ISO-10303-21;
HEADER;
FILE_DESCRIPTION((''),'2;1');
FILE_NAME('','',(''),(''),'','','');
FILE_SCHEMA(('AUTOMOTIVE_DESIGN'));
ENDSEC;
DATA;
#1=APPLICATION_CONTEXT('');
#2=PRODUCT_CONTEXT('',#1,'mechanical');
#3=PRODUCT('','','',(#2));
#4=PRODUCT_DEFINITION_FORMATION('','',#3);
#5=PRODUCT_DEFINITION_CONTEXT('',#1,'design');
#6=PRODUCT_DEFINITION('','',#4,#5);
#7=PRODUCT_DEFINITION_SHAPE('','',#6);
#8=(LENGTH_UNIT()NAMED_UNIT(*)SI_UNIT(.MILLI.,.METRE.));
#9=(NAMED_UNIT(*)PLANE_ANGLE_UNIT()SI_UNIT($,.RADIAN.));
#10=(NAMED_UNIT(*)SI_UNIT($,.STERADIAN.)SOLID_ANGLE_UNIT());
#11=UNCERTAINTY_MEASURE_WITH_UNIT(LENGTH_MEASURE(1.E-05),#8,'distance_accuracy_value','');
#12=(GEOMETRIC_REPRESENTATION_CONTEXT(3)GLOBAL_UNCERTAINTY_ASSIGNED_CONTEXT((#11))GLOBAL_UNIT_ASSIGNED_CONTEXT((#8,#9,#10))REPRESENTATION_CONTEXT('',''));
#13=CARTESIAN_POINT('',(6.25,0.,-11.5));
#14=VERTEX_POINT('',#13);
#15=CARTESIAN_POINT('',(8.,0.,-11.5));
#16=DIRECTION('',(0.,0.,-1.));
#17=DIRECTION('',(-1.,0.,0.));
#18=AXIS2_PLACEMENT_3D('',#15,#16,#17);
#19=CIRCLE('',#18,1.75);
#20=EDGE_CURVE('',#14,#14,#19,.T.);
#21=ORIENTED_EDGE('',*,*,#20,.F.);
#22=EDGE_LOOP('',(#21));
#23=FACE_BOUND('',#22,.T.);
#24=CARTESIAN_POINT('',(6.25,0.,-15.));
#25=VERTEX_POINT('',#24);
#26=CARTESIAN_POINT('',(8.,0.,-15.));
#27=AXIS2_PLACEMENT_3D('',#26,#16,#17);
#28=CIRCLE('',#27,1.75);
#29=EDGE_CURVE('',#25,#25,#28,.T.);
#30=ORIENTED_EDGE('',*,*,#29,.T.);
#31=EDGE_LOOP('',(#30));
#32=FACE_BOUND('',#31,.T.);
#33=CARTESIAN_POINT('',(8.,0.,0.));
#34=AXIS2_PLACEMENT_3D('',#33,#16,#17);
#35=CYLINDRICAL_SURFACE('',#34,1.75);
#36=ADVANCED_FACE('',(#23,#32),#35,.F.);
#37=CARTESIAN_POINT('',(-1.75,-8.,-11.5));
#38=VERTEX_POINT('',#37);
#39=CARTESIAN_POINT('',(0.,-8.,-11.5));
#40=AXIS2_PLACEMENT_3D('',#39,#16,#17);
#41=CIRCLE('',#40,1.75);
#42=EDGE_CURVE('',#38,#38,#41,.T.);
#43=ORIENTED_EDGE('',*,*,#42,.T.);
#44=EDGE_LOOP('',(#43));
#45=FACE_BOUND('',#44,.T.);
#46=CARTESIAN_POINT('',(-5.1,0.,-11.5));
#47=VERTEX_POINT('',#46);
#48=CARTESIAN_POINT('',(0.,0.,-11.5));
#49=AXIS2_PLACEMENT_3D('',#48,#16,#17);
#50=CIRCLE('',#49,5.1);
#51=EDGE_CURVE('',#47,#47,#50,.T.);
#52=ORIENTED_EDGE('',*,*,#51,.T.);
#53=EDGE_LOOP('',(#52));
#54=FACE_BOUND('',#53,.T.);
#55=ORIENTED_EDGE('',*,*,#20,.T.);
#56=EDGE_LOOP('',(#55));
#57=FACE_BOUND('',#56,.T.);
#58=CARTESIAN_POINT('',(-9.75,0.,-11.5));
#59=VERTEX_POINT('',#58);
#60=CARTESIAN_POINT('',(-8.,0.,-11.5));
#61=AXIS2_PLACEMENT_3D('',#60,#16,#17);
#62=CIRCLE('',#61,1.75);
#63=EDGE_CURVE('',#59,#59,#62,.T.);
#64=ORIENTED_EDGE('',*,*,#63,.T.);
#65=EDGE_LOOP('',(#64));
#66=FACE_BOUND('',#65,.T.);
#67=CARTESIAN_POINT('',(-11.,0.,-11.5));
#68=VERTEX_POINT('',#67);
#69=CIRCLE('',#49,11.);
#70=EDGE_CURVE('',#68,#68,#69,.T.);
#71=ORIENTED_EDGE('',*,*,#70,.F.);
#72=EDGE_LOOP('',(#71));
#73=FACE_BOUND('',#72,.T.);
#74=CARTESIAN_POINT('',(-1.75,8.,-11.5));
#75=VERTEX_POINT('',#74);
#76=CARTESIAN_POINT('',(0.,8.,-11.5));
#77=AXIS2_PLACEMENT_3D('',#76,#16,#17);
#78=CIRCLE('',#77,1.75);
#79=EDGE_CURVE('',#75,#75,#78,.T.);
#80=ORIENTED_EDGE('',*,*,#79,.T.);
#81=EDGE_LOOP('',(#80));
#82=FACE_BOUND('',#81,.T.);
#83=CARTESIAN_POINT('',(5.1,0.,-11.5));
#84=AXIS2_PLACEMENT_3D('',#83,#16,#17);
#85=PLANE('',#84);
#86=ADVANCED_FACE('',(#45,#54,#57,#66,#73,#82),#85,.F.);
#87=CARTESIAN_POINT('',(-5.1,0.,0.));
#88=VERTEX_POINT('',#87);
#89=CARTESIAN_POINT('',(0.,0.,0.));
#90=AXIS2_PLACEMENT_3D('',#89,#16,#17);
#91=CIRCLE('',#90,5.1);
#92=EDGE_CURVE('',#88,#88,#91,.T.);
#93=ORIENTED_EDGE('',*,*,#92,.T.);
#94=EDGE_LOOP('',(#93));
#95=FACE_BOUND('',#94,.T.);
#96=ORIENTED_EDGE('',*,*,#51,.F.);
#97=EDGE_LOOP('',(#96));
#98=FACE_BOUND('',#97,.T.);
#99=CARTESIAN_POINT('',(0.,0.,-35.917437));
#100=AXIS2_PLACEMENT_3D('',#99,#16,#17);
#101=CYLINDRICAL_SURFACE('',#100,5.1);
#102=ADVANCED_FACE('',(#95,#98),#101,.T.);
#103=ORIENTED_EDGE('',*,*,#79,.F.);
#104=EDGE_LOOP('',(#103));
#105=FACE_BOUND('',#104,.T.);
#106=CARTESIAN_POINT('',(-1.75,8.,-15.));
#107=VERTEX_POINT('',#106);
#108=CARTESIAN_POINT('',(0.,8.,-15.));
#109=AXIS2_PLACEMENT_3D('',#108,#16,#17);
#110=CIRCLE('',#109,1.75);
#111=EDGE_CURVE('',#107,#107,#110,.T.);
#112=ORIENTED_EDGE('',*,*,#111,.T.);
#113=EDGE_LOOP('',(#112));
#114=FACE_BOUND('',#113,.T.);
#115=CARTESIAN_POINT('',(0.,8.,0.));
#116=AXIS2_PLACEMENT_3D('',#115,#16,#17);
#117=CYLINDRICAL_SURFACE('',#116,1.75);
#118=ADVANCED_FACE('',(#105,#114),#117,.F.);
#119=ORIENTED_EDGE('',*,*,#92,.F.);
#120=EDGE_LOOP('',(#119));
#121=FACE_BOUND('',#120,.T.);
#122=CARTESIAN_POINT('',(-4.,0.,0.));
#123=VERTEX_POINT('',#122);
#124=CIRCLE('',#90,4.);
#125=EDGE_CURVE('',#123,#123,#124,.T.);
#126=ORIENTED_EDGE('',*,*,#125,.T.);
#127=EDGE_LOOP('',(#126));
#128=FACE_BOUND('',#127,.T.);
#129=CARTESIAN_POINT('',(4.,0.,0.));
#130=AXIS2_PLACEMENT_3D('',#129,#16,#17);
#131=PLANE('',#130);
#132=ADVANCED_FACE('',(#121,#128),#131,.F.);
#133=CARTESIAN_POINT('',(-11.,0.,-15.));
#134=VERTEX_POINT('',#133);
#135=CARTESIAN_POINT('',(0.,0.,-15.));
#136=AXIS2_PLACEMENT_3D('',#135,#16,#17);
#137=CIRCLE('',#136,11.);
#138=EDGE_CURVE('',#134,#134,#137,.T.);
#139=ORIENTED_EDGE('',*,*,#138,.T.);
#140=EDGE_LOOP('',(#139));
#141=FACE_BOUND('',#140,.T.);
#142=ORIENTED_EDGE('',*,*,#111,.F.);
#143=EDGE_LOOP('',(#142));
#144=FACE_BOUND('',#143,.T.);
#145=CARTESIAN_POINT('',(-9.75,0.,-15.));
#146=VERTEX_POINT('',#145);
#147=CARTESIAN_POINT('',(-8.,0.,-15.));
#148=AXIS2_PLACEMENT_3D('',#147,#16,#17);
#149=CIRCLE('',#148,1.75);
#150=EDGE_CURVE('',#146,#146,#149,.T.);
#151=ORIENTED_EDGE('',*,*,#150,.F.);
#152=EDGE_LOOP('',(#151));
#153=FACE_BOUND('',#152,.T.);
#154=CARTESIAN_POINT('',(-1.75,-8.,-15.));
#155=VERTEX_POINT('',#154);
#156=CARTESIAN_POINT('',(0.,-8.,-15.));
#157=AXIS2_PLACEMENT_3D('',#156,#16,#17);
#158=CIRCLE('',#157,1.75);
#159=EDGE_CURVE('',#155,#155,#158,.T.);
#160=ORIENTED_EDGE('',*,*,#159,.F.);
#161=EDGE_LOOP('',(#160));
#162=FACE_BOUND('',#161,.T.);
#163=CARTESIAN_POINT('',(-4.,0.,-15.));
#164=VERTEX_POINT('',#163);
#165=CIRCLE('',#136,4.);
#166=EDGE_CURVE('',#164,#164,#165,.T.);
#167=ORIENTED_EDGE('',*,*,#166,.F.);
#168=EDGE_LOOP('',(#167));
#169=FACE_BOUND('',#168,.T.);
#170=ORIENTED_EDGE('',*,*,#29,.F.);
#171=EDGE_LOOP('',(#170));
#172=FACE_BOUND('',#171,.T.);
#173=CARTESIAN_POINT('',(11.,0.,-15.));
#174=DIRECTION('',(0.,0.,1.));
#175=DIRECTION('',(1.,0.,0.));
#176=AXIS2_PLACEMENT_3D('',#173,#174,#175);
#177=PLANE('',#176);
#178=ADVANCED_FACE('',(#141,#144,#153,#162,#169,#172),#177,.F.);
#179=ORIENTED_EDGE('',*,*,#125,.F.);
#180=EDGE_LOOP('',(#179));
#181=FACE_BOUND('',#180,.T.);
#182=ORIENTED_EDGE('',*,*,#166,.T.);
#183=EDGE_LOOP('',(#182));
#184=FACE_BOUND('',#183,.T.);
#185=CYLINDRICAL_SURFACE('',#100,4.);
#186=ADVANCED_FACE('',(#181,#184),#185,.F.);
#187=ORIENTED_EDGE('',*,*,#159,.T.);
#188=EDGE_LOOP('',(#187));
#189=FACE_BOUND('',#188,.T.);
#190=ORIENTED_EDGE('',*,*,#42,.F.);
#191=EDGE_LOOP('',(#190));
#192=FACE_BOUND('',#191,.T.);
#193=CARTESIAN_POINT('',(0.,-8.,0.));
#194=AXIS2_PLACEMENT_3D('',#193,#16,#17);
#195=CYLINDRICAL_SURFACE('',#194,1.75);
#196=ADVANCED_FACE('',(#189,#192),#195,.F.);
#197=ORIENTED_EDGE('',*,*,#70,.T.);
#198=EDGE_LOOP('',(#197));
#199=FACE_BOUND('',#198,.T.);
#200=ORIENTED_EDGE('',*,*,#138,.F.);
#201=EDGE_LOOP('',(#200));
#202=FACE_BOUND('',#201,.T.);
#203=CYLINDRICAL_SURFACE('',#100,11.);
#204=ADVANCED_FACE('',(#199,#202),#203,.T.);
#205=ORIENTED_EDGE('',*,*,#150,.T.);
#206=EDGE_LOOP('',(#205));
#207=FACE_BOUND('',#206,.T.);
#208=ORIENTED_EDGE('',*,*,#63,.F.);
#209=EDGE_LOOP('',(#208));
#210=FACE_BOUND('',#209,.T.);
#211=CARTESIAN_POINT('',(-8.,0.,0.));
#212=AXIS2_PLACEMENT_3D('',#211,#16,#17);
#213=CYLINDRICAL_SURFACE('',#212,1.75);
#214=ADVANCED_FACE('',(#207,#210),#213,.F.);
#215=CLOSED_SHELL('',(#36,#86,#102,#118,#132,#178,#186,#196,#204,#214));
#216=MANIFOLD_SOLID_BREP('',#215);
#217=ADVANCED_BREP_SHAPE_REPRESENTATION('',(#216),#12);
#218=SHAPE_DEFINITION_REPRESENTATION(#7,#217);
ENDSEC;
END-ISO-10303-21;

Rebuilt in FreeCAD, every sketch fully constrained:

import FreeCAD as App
import Part
import Sketcher
Q = App.Units.Quantity

doc = App.newDocument("Part")
body = doc.addObject("PartDesign::Body", "Body")

# Sketch on XZ plane
sketch1 = doc.addObject("Sketcher::SketchObject", "Sketch")
body.addObject(sketch1)
sketch1.AttachmentSupport = (doc.XZ_Plane, [""])
sketch1.MapMode = "FlatFace"
sketch1.addGeometry([
    Part.LineSegment(App.Vector(4, -15, 0), App.Vector(4, 0, 0)),  # 0
    Part.LineSegment(App.Vector(4, 0, 0), App.Vector(5.1, 0, 0)),  # 1
    Part.LineSegment(App.Vector(5.1, 0, 0), App.Vector(5.1, -11.5, 0)),  # 2
    Part.LineSegment(App.Vector(5.1, -11.5, 0), App.Vector(11, -11.5, 0)),  # 3
    Part.LineSegment(App.Vector(11, -11.5, 0), App.Vector(11, -15, 0)),  # 4
    Part.LineSegment(App.Vector(11, -15, 0), App.Vector(4, -15, 0)),  # 5
], False)
sketch1.addConstraint([
    Sketcher.Constraint("Coincident", 0, 2, 1, 1),
    Sketcher.Constraint("Coincident", 1, 2, 2, 1),
    Sketcher.Constraint("Coincident", 2, 2, 3, 1),
    Sketcher.Constraint("Coincident", 3, 2, 4, 1),
    Sketcher.Constraint("Coincident", 4, 2, 5, 1),
    Sketcher.Constraint("Coincident", 5, 2, 0, 1),
    Sketcher.Constraint("Vertical", 0),
    Sketcher.Constraint("Horizontal", 1),
    Sketcher.Constraint("Vertical", 2),
    Sketcher.Constraint("Horizontal", 3),
    Sketcher.Constraint("Vertical", 4),
    Sketcher.Constraint("Horizontal", 5),
    Sketcher.Constraint("PointOnObject", 0, 2, -1),
    Sketcher.Constraint("DistanceX", 5, 2, 5, 1, Q("7 mm")),
    Sketcher.Constraint("DistanceY", 0, 1, 0, 2, Q("15 mm")),
    Sketcher.Constraint("DistanceX", 1, 1, 1, 2, Q("1.1 mm")),
    Sketcher.Constraint("DistanceY", 2, 2, 2, 1, Q("11.5 mm")),
    Sketcher.Constraint("DistanceX", -1, 1, 0, 2, Q("4 mm")),
])
revolution = doc.addObject("PartDesign::Revolution", "Revolution")
body.addObject(revolution)
revolution.Profile = sketch1
revolution.ReferenceAxis = (sketch1, ["V_Axis"])
revolution.Angle = 360

# Sketch on XY plane
sketch2 = doc.addObject("Sketcher::SketchObject", "Sketch001")
body.addObject(sketch2)
sketch2.AttachmentSupport = (doc.XY_Plane, [""])
sketch2.MapMode = "FlatFace"
sketch2.AttachmentOffset = App.Placement(App.Vector(0, 0, -15), App.Rotation())
sketch2.addGeometry([
    Part.Circle(App.Vector(0, 8, 0), App.Vector(0, 0, 1), 1.75),
    Part.Circle(App.Vector(-8, 0, 0), App.Vector(0, 0, 1), 1.75),
    Part.Circle(App.Vector(0, -8, 0), App.Vector(0, 0, 1), 1.75),
    Part.Circle(App.Vector(8, 0, 0), App.Vector(0, 0, 1), 1.75),
], False)
sketch2.addConstraint([
    Sketcher.Constraint("Equal", 0, 1),
    Sketcher.Constraint("Equal", 1, 2),
    Sketcher.Constraint("Equal", 2, 3),
    Sketcher.Constraint("Symmetric", 0, 3, 2, 3, -1, 1),
    Sketcher.Constraint("Symmetric", 1, 3, 3, 3, -1, 1),
    Sketcher.Constraint("PointOnObject", 0, 3, -2),
    Sketcher.Constraint("PointOnObject", 1, 3, -1),
    Sketcher.Constraint("Diameter", 0, Q("3.5 mm")),
    Sketcher.Constraint("DistanceY", -1, 1, 0, 3, Q("8 mm")),
    Sketcher.Constraint("DistanceX", 1, 3, -1, 1, Q("8 mm")),
])
pocket1 = doc.addObject("PartDesign::Pocket", "Pocket")
body.addObject(pocket1)
pocket1.Profile = sketch2
pocket1.Type = "ThroughAll"
pocket1.Reversed = True

doc.recompute()
